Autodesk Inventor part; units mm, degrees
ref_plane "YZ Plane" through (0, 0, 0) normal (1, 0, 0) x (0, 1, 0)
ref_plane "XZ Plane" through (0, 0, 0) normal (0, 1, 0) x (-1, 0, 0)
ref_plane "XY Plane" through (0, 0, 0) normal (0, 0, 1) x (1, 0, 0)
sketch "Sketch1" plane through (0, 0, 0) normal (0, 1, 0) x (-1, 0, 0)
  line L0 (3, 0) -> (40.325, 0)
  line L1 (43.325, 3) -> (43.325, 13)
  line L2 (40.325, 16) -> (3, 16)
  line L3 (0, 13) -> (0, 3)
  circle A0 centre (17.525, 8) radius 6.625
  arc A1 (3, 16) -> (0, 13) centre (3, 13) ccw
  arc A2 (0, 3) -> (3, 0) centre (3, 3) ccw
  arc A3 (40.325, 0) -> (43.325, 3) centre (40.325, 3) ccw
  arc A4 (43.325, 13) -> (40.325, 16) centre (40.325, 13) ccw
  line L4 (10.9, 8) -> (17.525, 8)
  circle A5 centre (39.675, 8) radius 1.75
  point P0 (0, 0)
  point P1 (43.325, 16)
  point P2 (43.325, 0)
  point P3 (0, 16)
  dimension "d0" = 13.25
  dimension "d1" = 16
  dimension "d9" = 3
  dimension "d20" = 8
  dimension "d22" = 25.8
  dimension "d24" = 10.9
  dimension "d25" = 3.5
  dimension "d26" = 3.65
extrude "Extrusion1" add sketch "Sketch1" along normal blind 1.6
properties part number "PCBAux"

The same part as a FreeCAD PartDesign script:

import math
import FreeCAD as App
import Part
import Sketcher

doc = App.newDocument("Part")
params = doc.addObject("Spreadsheet::Sheet", "Params")
for row, (alias, value) in enumerate([
    ("sketch1_radius", "3 mm"),
    ("sketch1_diameter", "3.5 mm"),
    ("sketch1_diameter2", "13.25 mm"),
    ("pad1_length", "1.6 mm"),
], start=1):
    params.set(f"A{row}", alias)
    params.set(f"B{row}", "=" + value)
    params.setAlias(f"B{row}", alias)

body = doc.addObject("PartDesign::Body", "Body")

sketch1 = body.newObject("Sketcher::SketchObject", "Sketch")
sketch1.AttachmentSupport = (doc.getObject("XZ_Plane"), [""])
sketch1.MapMode = "FlatFace"
sketch1.addGeometry(Part.ArcOfCircle(Part.Circle(App.Vector(-3, 3, 0), App.Vector(0, 0, 1), 3), math.radians(-90), math.radians(0)), False)
sketch1.addGeometry(Part.LineSegment(App.Vector(-3, 0, 0), App.Vector(-40.325, 0, 0)), False)
sketch1.addGeometry(Part.ArcOfCircle(Part.Circle(App.Vector(-40.325, 3, 0), App.Vector(0, 0, 1), 3), math.radians(180), math.radians(270)), False)
sketch1.addGeometry(Part.LineSegment(App.Vector(-43.325, 3, 0), App.Vector(-43.325, 13, 0)), False)
sketch1.addGeometry(Part.ArcOfCircle(Part.Circle(App.Vector(-40.325, 13, 0), App.Vector(0, 0, 1), 3), math.radians(90), math.radians(180)), False)
sketch1.addGeometry(Part.LineSegment(App.Vector(-40.325, 16, 0), App.Vector(-3, 16, 0)), False)
sketch1.addGeometry(Part.ArcOfCircle(Part.Circle(App.Vector(-3, 13, 0), App.Vector(0, 0, 1), 3), math.radians(0), math.radians(90)), False)
sketch1.addGeometry(Part.LineSegment(App.Vector(0, 13, 0), App.Vector(0, 3, 0)), False)
sketch1.addGeometry(Part.Circle(App.Vector(-17.525, 8, 0), App.Vector(0, 0, 1), 6.625), False)
sketch1.addGeometry(Part.Circle(App.Vector(-39.675, 8, 0), App.Vector(0, 0, 1), 1.75), False)
sketch1.addConstraint(Sketcher.Constraint("Tangent", 0, 1, 1, 1))
sketch1.addConstraint(Sketcher.Constraint("Tangent", 1, 2, 2, 2))
sketch1.addConstraint(Sketcher.Constraint("Tangent", 2, 1, 3, 1))
sketch1.addConstraint(Sketcher.Constraint("Tangent", 3, 2, 4, 2))
sketch1.addConstraint(Sketcher.Constraint("Tangent", 4, 1, 5, 1))
sketch1.addConstraint(Sketcher.Constraint("Tangent", 5, 2, 6, 2))
sketch1.addConstraint(Sketcher.Constraint("Tangent", 6, 1, 7, 1))
sketch1.addConstraint(Sketcher.Constraint("Tangent", 7, 2, 0, 2))
sketch1.addConstraint(Sketcher.Constraint("Horizontal", 1))
sketch1.addConstraint(Sketcher.Constraint("Vertical", 3))
sketch1.addConstraint(Sketcher.Constraint("Horizontal", 5))
sketch1.addConstraint(Sketcher.Constraint("Vertical", 7))
sketch1.addConstraint(Sketcher.Constraint("Equal", 0, 2))
sketch1.addConstraint(Sketcher.Constraint("Equal", 2, 4))
sketch1.addConstraint(Sketcher.Constraint("Equal", 4, 6))
sketch1.addConstraint(Sketcher.Constraint("PointOnObject", 0, 1, -1))
sketch1.addConstraint(Sketcher.Constraint("PointOnObject", 6, 1, -2))
sketch1.addConstraint(Sketcher.Constraint("Horizontal", 8, 3, 9, 3))
sketch1.addConstraint(Sketcher.Constraint("Radius", 0, 3.0))
sketch1.addConstraint(Sketcher.Constraint("Diameter", 9, 3.5))
sketch1.addConstraint(Sketcher.Constraint("Diameter", 8, 13.25))
sketch1.addConstraint(Sketcher.Constraint("DistanceY", -1, 1, 8, 3, 8.0))
sketch1.addConstraint(Sketcher.Constraint("DistanceY", -1, 1, 4, 1, 16.0))
sketch1.addConstraint(Sketcher.Constraint("DistanceX", 2, 1, 8, 3, 25.8))
sketch1.addConstraint(Sketcher.Constraint("DistanceX", 2, 1, 9, 3, 3.65))
sketch1.addConstraint(Sketcher.Constraint("DistanceX", 1, 2, 1, 1, 37.325))
sketch1.setExpression("Constraints[18]", "Params.sketch1_radius")
sketch1.setExpression("Constraints[19]", "Params.sketch1_diameter")
sketch1.setExpression("Constraints[20]", "Params.sketch1_diameter2")
pad1 = body.newObject("PartDesign::Pad", "Pad")
pad1.Profile = sketch1
pad1.setExpression("Length", "Params.pad1_length")
pad1.Reversed = True

doc.recompute()
